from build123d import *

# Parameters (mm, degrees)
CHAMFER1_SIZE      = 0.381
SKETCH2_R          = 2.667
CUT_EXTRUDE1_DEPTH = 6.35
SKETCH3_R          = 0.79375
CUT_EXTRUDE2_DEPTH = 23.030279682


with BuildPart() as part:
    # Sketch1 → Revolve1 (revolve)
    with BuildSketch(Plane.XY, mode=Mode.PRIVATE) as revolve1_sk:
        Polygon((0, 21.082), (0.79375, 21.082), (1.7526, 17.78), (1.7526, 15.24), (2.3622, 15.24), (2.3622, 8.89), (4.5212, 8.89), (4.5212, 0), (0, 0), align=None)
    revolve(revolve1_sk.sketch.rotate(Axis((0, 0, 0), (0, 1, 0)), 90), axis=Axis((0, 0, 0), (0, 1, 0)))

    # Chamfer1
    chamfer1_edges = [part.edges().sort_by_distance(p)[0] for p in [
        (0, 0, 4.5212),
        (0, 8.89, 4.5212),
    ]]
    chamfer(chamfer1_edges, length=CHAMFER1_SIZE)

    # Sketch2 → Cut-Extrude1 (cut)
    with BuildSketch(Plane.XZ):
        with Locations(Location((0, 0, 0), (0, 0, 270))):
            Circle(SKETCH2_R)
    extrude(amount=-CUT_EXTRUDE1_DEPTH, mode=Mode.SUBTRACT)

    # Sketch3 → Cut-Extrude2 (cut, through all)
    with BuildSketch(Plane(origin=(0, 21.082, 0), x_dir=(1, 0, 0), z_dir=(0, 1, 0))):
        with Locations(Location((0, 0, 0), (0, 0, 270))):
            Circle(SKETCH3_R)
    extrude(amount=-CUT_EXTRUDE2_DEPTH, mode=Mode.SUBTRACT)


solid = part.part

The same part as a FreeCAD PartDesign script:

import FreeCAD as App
import Part
import Sketcher
from FreeCAD import Vector
Q = App.Units.Quantity


def edges_at(feature, points):
    """Names of the edges that pass closest to the given points."""
    edges = feature.Shape.Edges
    near = lambda p: min(range(len(edges)), key=lambda i: edges[i].distToShape(Part.Vertex(*p))[0])
    return sorted({f"Edge{near(p) + 1}" for p in points})


def add_polygon(sketch, points):
    """Adds a closed chain of lines whose ends are joined by coincident constraints."""
    first, n = sketch.GeometryCount, len(points)
    for a, b in zip(points, points[1:] + points[:1]):
        sketch.addGeometry(Part.LineSegment(App.Vector(*a, 0), App.Vector(*b, 0)), False)
    for i in range(n):
        sketch.addConstraint(Sketcher.Constraint("Coincident", first + i, 2, first + (i + 1) % n, 1))

doc = App.newDocument("Part")
body = doc.addObject("PartDesign::Body", "Body")

# Sketch on XY plane
sketch1 = doc.addObject("Sketcher::SketchObject", "Sketch")
body.addObject(sketch1)
sketch1.AttachmentSupport = (doc.XY_Plane, [""])
sketch1.MapMode = "FlatFace"
add_polygon(sketch1, [(0.79375, 21.082), (0, 21.082), (0, 0), (4.5212, 0), (4.5212, 8.89), (2.3622, 8.89), (2.3622, 15.24), (1.7526, 15.24), (1.7526, 17.78)])  # lines 0-8
sketch1.addConstraint([
    Sketcher.Constraint("Horizontal", 0),
    Sketcher.Constraint("Vertical", 1),
    Sketcher.Constraint("Horizontal", 2),
    Sketcher.Constraint("Vertical", 3),
    Sketcher.Constraint("Horizontal", 4),
    Sketcher.Constraint("Vertical", 5),
    Sketcher.Constraint("Horizontal", 6),
    Sketcher.Constraint("Vertical", 7),
    Sketcher.Constraint("Coincident", 1, 2, -1, 1),
    Sketcher.Constraint("DistanceY", 7, 1, 7, 2, Q("0.1 in")),
    Sketcher.Constraint("DistanceY", 1, 2, 1, 1, Q("0.83 in")),
    Sketcher.Constraint("DistanceY", 3, 1, 3, 2, Q("0.35 in")),
    Sketcher.Constraint("DistanceY", 5, 1, 5, 2, Q("0.25 in")),
    Sketcher.Constraint("DistanceX", 0, 2, 0, 1, Q("0.03125 in")),
    Sketcher.Constraint("DistanceX", 2, 1, 2, 2, Q("0.178 in")),
    Sketcher.Constraint("DistanceX", 4, 2, 4, 1, Q("0.085 in")),
    Sketcher.Constraint("DistanceX", 6, 2, 6, 1, Q("0.024 in")),
])
revolution = doc.addObject("PartDesign::Revolution", "Revolution")
body.addObject(revolution)
revolution.Profile = sketch1
revolution.ReferenceAxis = (sketch1, ["V_Axis"])
revolution.Angle = 360
doc.recompute()

chamfer = doc.addObject("PartDesign::Chamfer", "Chamfer")
body.addObject(chamfer)
chamfer.Base = (revolution, edges_at(revolution, [(0, 0, 4.521), (0, 8.89, 4.521)]))
chamfer.Size = Q("0.015 in")

# Sketch on XZ plane
sketch2 = doc.addObject("Sketcher::SketchObject", "Sketch001")
body.addObject(sketch2)
sketch2.AttachmentSupport = (doc.XZ_Plane, [""])
sketch2.MapMode = "FlatFace"
sketch2.addGeometry(Part.Circle(Vector(0, 0, 0), Vector(0, 0, 1), 2.667), False)
sketch2.addConstraint([
    Sketcher.Constraint("Coincident", 0, 3, -1, 1),
    Sketcher.Constraint("Diameter", 0, Q("0.21 in")),
])
pocket1 = doc.addObject("PartDesign::Pocket", "Pocket")
body.addObject(pocket1)
pocket1.Profile = sketch2
pocket1.Length = Q("0.25 in")

# Sketch on XZ plane
sketch3 = doc.addObject("Sketcher::SketchObject", "Sketch002")
body.addObject(sketch3)
sketch3.AttachmentSupport = (doc.XZ_Plane, [""])
sketch3.MapMode = "FlatFace"
sketch3.AttachmentOffset = App.Placement(Vector(0, 0, -0.83 * 25.4), App.Rotation())
sketch3.addGeometry(Part.Circle(Vector(0, 0, 0), Vector(0, 0, 1), 0.79375), False)
sketch3.addConstraint([
    Sketcher.Constraint("Coincident", 0, 3, -1, 1),
    Sketcher.Constraint("Diameter", 0, Q("0.0625 in")),
])
pocket2 = doc.addObject("PartDesign::Pocket", "Pocket001")
body.addObject(pocket2)
pocket2.Profile = sketch3
pocket2.Type = "ThroughAll"
pocket2.Reversed = True

doc.recompute()
